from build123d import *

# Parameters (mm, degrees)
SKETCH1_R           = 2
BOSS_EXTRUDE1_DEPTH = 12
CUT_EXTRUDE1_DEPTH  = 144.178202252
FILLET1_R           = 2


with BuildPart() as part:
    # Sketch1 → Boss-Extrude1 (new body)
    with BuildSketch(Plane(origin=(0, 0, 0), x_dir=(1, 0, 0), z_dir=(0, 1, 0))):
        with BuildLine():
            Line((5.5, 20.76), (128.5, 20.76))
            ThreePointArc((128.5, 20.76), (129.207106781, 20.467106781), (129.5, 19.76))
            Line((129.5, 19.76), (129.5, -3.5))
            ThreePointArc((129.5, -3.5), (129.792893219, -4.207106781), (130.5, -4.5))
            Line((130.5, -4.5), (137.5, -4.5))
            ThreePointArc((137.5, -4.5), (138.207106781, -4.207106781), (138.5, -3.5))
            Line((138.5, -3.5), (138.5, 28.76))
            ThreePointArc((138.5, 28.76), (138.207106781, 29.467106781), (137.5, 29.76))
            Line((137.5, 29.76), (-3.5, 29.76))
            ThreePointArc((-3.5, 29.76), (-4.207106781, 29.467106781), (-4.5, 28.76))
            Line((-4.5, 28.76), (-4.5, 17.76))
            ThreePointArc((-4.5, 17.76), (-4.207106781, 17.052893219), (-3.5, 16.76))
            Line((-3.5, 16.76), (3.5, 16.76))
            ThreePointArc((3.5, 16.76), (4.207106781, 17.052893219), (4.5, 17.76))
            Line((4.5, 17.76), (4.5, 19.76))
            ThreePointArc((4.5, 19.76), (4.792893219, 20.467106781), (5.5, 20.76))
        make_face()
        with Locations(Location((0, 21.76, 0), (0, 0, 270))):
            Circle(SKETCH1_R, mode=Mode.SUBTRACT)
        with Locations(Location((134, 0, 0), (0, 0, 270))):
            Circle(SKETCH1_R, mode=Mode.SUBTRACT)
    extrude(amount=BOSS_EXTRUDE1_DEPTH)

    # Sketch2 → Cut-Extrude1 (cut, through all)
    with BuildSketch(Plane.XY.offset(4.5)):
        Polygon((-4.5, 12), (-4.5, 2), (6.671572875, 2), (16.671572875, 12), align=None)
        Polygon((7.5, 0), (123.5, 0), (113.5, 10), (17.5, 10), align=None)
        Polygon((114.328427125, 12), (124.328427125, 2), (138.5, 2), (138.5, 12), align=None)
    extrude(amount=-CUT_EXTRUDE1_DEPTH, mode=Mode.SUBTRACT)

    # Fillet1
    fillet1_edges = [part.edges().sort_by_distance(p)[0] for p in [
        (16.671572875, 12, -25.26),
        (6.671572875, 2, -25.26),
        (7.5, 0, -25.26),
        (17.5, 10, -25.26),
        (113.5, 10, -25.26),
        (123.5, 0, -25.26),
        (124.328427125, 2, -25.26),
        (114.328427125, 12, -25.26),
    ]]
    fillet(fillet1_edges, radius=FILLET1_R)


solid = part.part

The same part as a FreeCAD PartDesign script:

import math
import FreeCAD as App
import Part
import Sketcher

V = App.Vector


def edges_at(feature, points):
    """Names of the edges that pass closest to the given points."""
    edges = feature.Shape.Edges
    near = lambda p: min(range(len(edges)), key=lambda i: edges[i].distToShape(Part.Vertex(*p))[0])
    return sorted({f"Edge{near(p) + 1}" for p in points})

doc = App.newDocument("Part")
body = doc.addObject("PartDesign::Body", "Body")

sketch1 = body.newObject("Sketcher::SketchObject", "Sketch")
sketch1.AttachmentSupport = (doc.getObject("XZ_Plane"), [""])
sketch1.MapMode = "FlatFace"
sketch1.addGeometry([
    Part.LineSegment(V(5.5, -20.76, 0), V(128.5, -20.76, 0)),
    Part.ArcOfCircle(Part.Circle(V(128.5, -19.76, 0), V(0, 0, 1), 1), math.radians(-90), math.radians(0)),
    Part.LineSegment(V(129.5, -19.76, 0), V(129.5, 3.5, 0)),
    Part.ArcOfCircle(Part.Circle(V(130.5, 3.5, 0), V(0, 0, 1), 1), math.radians(90), math.radians(180)),
    Part.LineSegment(V(130.5, 4.5, 0), V(137.5, 4.5, 0)),
    Part.ArcOfCircle(Part.Circle(V(137.5, 3.5, 0), V(0, 0, 1), 1), math.radians(0), math.radians(90)),
    Part.LineSegment(V(138.5, 3.5, 0), V(138.5, -28.76, 0)),
    Part.ArcOfCircle(Part.Circle(V(137.5, -28.76, 0), V(0, 0, 1), 1), math.radians(-90), math.radians(0)),
    Part.LineSegment(V(137.5, -29.76, 0), V(-3.5, -29.76, 0)),
    Part.ArcOfCircle(Part.Circle(V(-3.5, -28.76, 0), V(0, 0, 1), 1), math.radians(-180), math.radians(-90)),
    Part.LineSegment(V(-4.5, -28.76, 0), V(-4.5, -17.76, 0)),
    Part.ArcOfCircle(Part.Circle(V(-3.5, -17.76, 0), V(0, 0, 1), 1), math.radians(90), math.radians(180)),
    Part.LineSegment(V(-3.5, -16.76, 0), V(3.5, -16.76, 0)),
    Part.ArcOfCircle(Part.Circle(V(3.5, -17.76, 0), V(0, 0, 1), 1), math.radians(0), math.radians(90)),
    Part.LineSegment(V(4.5, -17.76, 0), V(4.5, -19.76, 0)),
    Part.ArcOfCircle(Part.Circle(V(5.5, -19.76, 0), V(0, 0, 1), 1), math.radians(-180), math.radians(-90)),
    Part.Circle(V(134, 0, 0), V(0, 0, 1), 2),
    Part.Circle(V(0, -21.76, 0), V(0, 0, 1), 2),
], False)
sketch1.addConstraint([
    Sketcher.Constraint("Tangent", 0, 2, 1, 1),
    Sketcher.Constraint("Tangent", 1, 2, 2, 1),
    Sketcher.Constraint("Tangent", 2, 2, 3, 2),
    Sketcher.Constraint("Tangent", 3, 1, 4, 1),
    Sketcher.Constraint("Tangent", 4, 2, 5, 2),
    Sketcher.Constraint("Tangent", 5, 1, 6, 1),
    Sketcher.Constraint("Tangent", 6, 2, 7, 2),
    Sketcher.Constraint("Tangent", 7, 1, 8, 1),
    Sketcher.Constraint("Tangent", 8, 2, 9, 2),
    Sketcher.Constraint("Tangent", 9, 1, 10, 1),
    Sketcher.Constraint("Tangent", 10, 2, 11, 2),
    Sketcher.Constraint("Tangent", 11, 1, 12, 1),
    Sketcher.Constraint("Tangent", 12, 2, 13, 2),
    Sketcher.Constraint("Tangent", 13, 1, 14, 1),
    Sketcher.Constraint("Tangent", 14, 2, 15, 1),
    Sketcher.Constraint("Tangent", 15, 2, 0, 1),
    Sketcher.Constraint("Horizontal", 0),
    Sketcher.Constraint("Vertical", 2),
    Sketcher.Constraint("Horizontal", 4),
    Sketcher.Constraint("Vertical", 6),
    Sketcher.Constraint("Horizontal", 8),
    Sketcher.Constraint("Vertical", 10),
    Sketcher.Constraint("Horizontal", 12),
    Sketcher.Constraint("Vertical", 14),
    Sketcher.Constraint("Equal", 1, 3),
    Sketcher.Constraint("Equal", 3, 5),
    Sketcher.Constraint("Equal", 5, 7),
    Sketcher.Constraint("Equal", 7, 9),
    Sketcher.Constraint("Equal", 9, 11),
    Sketcher.Constraint("Equal", 11, 13),
    Sketcher.Constraint("Equal", 13, 15),
    Sketcher.Constraint("Equal", 16, 17),
    Sketcher.Constraint("PointOnObject", 16, 3, -1),
    Sketcher.Constraint("PointOnObject", 17, 3, -2),
    Sketcher.Constraint("Equal", 4, 12),
    Sketcher.Constraint("Diameter", 16, 4.0),
    Sketcher.Constraint("Radius", 1, 1.0),
    Sketcher.Constraint("DistanceX", 0, 1, 0, 2, 123.0),
    Sketcher.Constraint("DistanceX", 4, 1, 4, 2, 7.0),
    Sketcher.Constraint("DistanceY", 10, 1, 10, 2, 11.0),
    Sketcher.Constraint("DistanceY", 14, 2, 14, 1, 2.0),
    Sketcher.Constraint("DistanceX", -1, 1, 16, 3, 134.0),
    Sketcher.Constraint("DistanceY", 17, 3, 11, 3, 4.0),
    Sketcher.Constraint("DistanceY", 2, 1, 2, 2, 23.26),
    Sketcher.Constraint("DistanceX", -1, 1, 1, 3, 128.5),
    Sketcher.Constraint("DistanceY", -1, 1, 3, 3, 3.5),
])
pad1 = body.newObject("PartDesign::Pad", "Pad")
pad1.Profile = sketch1
pad1.Length = 12
pad1.Reversed = True

sketch2 = body.newObject("Sketcher::SketchObject", "Sketch001")
sketch2.AttachmentSupport = (doc.getObject("XY_Plane"), [""])
sketch2.MapMode = "FlatFace"
sketch2.AttachmentOffset = App.Placement(V(0, 0, 4.5), App.Rotation())
sketch2.addGeometry([
    Part.LineSegment(V(-4.5, 12, 0), V(-4.5, 2, 0)),
    Part.LineSegment(V(-4.5, 2, 0), V(6.671573, 2, 0)),
    Part.LineSegment(V(6.671573, 2, 0), V(16.671573, 12, 0)),
    Part.LineSegment(V(16.671573, 12, 0), V(-4.5, 12, 0)),
    Part.LineSegment(V(7.5, 0, 0), V(123.5, 0, 0)),
    Part.LineSegment(V(123.5, 0, 0), V(113.5, 10, 0)),
    Part.LineSegment(V(113.5, 10, 0), V(17.5, 10, 0)),
    Part.LineSegment(V(17.5, 10, 0), V(7.5, 0, 0)),
    Part.LineSegment(V(114.328427, 12, 0), V(124.328427, 2, 0)),
    Part.LineSegment(V(124.328427, 2, 0), V(138.5, 2, 0)),
    Part.LineSegment(V(138.5, 2, 0), V(138.5, 12, 0)),
    Part.LineSegment(V(138.5, 12, 0), V(114.328427, 12, 0)),
], False)
sketch2.addConstraint([
    Sketcher.Constraint("Coincident", 0, 2, 1, 1),
    Sketcher.Constraint("Coincident", 1, 2, 2, 1),
    Sketcher.Constraint("Coincident", 2, 2, 3, 1),
    Sketcher.Constraint("Coincident", 3, 2, 0, 1),
    Sketcher.Constraint("Coincident", 4, 2, 5, 1),
    Sketcher.Constraint("Coincident", 5, 2, 6, 1),
    Sketcher.Constraint("Coincident", 6, 2, 7, 1),
    Sketcher.Constraint("Coincident", 7, 2, 4, 1),
    Sketcher.Constraint("Coincident", 8, 2, 9, 1),
    Sketcher.Constraint("Coincident", 9, 2, 10, 1),
    Sketcher.Constraint("Coincident", 10, 2, 11, 1),
    Sketcher.Constraint("Coincident", 11, 2, 8, 1),
    Sketcher.Constraint("Vertical", 0),
    Sketcher.Constraint("Horizontal", 1),
    Sketcher.Constraint("Horizontal", 3),
    Sketcher.Constraint("Horizontal", 4),
    Sketcher.Constraint("Horizontal", 6),
    Sketcher.Constraint("Horizontal", 9),
    Sketcher.Constraint("Vertical", 10),
    Sketcher.Constraint("Horizontal", 11),
    Sketcher.Constraint("PointOnObject", 4, 2, -1),
    Sketcher.Constraint("Perpendicular", 2, 5),
    Sketcher.Constraint("Perpendicular", 5, 7),
    Sketcher.Constraint("Perpendicular", 7, 8),
    Sketcher.Constraint("Horizontal", 1, 2, 8, 2),
    Sketcher.Constraint("Horizontal", 3, 2, 10, 2),
    Sketcher.Constraint("Equal", 2, 5),
    Sketcher.Constraint("Equal", 5, 7),
    Sketcher.Constraint("DistanceX", 4, 1, 4, 2, 116.0),
    Sketcher.Constraint("DistanceX", 6, 2, 6, 1, 96.0),
    Sketcher.Constraint("DistanceY", -1, 1, 0, 2, 2.0),
    Sketcher.Constraint("DistanceX", 0, 2, 4, 2, 128.0),
    Sketcher.Constraint("DistanceX", 4, 2, 9, 2, 15.0),
    Sketcher.Constraint("DistanceX", 0, 2, -1, 1, 4.5),
    Sketcher.Constraint("DistanceX", 1, 1, 1, 2, 11.171573),
    Sketcher.Constraint("DistanceX", 9, 1, 9, 2, 14.171573),
])
pocket1 = body.newObject("PartDesign::Pocket", "Pocket")
pocket1.Profile = sketch2
pocket1.Type = "ThroughAll"
doc.recompute()

fillet = body.newObject("PartDesign::Fillet", "Fillet")
fillet.Base = (pocket1, edges_at(pocket1, [
    (16.672, 12, -25.26),
    (6.672, 2, -25.26),
    (7.5, 0, -25.26),
    (17.5, 10, -25.26),
    (113.5, 10, -25.26),
    (123.5, 0, -25.26),
    (124.328, 2, -25.26),
    (114.328, 12, -25.26),
]))
fillet.Radius = 2

doc.recompute()
